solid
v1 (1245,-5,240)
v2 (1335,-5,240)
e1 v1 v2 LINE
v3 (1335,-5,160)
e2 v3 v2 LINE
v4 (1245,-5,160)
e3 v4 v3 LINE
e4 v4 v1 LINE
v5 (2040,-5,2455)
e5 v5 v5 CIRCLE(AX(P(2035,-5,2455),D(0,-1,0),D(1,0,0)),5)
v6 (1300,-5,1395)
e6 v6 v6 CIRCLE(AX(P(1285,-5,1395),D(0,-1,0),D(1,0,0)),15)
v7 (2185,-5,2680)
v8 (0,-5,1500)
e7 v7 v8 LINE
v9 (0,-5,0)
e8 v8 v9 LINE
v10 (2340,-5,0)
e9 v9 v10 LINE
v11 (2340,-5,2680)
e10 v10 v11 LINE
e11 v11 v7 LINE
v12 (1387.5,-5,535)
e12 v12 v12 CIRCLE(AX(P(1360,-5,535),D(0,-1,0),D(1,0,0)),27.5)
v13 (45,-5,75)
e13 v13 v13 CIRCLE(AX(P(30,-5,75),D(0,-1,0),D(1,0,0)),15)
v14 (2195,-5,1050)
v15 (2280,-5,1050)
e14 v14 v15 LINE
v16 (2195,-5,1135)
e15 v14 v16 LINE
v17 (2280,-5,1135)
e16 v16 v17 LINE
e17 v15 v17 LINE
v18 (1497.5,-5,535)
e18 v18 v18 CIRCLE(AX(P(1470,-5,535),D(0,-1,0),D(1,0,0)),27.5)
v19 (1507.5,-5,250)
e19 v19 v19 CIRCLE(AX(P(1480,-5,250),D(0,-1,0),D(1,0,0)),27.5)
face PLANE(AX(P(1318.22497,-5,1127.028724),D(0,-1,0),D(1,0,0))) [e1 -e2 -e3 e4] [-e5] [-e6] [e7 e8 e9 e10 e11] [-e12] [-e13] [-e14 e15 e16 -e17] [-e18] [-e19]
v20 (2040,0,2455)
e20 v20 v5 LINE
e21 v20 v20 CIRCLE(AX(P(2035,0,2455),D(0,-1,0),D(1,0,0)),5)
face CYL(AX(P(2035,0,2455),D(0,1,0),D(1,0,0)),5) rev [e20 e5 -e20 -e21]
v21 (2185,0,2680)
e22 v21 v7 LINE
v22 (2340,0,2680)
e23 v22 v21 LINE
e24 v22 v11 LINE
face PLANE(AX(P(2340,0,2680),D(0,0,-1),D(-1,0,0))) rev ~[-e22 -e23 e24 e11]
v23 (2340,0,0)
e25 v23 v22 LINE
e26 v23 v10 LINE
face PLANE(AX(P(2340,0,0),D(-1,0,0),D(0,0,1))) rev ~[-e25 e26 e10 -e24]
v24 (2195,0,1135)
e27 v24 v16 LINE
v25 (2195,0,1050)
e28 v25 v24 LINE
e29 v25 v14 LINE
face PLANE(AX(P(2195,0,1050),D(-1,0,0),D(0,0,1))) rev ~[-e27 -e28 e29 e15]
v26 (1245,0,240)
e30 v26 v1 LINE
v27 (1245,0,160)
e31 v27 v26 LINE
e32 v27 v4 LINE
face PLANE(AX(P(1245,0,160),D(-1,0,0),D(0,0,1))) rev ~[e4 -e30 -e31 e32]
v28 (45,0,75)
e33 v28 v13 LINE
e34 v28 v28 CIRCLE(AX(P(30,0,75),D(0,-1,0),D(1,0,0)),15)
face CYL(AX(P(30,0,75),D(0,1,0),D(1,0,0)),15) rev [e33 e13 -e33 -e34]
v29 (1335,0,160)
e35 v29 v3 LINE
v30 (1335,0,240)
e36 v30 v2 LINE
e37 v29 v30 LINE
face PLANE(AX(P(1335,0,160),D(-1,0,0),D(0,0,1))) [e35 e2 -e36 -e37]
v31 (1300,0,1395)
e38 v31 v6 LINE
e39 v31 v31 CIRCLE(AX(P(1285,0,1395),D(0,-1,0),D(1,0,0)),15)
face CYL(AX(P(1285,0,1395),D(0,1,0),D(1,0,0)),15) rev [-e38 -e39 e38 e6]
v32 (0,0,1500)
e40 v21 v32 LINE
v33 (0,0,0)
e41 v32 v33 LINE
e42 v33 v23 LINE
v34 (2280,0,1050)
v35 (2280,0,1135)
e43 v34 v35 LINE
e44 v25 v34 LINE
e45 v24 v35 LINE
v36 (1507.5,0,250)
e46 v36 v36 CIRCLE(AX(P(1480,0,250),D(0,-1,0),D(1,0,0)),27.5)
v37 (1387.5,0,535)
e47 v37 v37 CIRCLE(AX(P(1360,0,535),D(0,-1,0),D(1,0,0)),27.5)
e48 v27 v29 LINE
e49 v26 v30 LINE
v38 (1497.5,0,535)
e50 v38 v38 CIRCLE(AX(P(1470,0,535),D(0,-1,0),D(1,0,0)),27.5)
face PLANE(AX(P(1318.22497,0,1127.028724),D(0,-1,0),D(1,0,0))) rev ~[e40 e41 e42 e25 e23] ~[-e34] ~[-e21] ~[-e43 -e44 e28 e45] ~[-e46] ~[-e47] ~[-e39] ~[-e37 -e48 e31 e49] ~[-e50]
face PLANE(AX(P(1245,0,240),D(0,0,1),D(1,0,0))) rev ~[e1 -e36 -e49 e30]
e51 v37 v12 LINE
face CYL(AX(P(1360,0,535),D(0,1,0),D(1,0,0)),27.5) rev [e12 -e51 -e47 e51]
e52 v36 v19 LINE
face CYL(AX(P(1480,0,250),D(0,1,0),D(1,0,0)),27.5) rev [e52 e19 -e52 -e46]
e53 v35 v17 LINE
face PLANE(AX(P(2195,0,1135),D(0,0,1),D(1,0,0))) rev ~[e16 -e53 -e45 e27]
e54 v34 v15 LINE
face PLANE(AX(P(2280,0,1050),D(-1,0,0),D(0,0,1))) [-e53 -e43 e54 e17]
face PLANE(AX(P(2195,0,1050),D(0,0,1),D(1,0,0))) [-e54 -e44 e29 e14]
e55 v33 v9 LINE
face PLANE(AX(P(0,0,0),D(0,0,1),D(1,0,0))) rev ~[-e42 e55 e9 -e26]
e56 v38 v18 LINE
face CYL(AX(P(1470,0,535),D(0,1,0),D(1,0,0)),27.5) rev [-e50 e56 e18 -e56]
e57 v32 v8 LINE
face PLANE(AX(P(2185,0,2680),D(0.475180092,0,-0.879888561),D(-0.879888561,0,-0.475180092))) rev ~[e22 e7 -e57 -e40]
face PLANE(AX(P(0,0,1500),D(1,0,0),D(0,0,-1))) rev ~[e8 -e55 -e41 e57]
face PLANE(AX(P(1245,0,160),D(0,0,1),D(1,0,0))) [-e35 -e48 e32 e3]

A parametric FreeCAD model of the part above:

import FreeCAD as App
import Part
import Sketcher

V = App.Vector


def add_polygon(sketch, points):
    """Adds a closed chain of lines whose ends are joined by coincident constraints."""
    first, n = sketch.GeometryCount, len(points)
    for a, b in zip(points, points[1:] + points[:1]):
        sketch.addGeometry(Part.LineSegment(App.Vector(*a, 0), App.Vector(*b, 0)), False)
    for i in range(n):
        sketch.addConstraint(Sketcher.Constraint("Coincident", first + i, 2, first + (i + 1) % n, 1))

doc = App.newDocument("Part")
body = doc.addObject("PartDesign::Body", "Body")

# Sketch on XZ plane
sketch1 = body.newObject("Sketcher::SketchObject", "Sketch")
sketch1.AttachmentSupport = (doc.getObject("XZ_Plane"), [""])
sketch1.MapMode = "FlatFace"
add_polygon(sketch1, [(0, 1500), (0, 0), (2340, 0), (2340, 2680), (2185, 2680)])  # lines 0-4
sketch1.addGeometry(Part.Circle(V(30, 75, 0), V(0, 0, 1), 15), False)  # 5
add_polygon(sketch1, [(1335, 160), (1245, 160), (1245, 240), (1335, 240)])  # lines 6-9
sketch1.addGeometry(Part.Circle(V(1480, 250, 0), V(0, 0, 1), 27.5), False)  # 10
sketch1.addGeometry(Part.Circle(V(1360, 535, 0), V(0, 0, 1), 27.5), False)  # 11
sketch1.addGeometry(Part.Circle(V(1470, 535, 0), V(0, 0, 1), 27.5), False)  # 12
add_polygon(sketch1, [(2280, 1050), (2195, 1050), (2195, 1135), (2280, 1135)])  # lines 13-16
sketch1.addGeometry(Part.Circle(V(1285, 1395, 0), V(0, 0, 1), 15), False)  # 17
sketch1.addGeometry(Part.Circle(V(2035, 2455, 0), V(0, 0, 1), 5), False)  # 18
sketch1.addConstraint([
    Sketcher.Constraint("Vertical", 0),
    Sketcher.Constraint("Horizontal", 1),
    Sketcher.Constraint("Vertical", 2),
    Sketcher.Constraint("Horizontal", 3),
    Sketcher.Constraint("Horizontal", 6),
    Sketcher.Constraint("Vertical", 7),
    Sketcher.Constraint("Horizontal", 8),
    Sketcher.Constraint("Vertical", 9),
    Sketcher.Constraint("Horizontal", 13),
    Sketcher.Constraint("Vertical", 14),
    Sketcher.Constraint("Horizontal", 15),
    Sketcher.Constraint("Vertical", 16),
    Sketcher.Constraint("Coincident", 0, 2, -1, 1),
    Sketcher.Constraint("Equal", 10, 11),
    Sketcher.Constraint("Equal", 11, 12),
    Sketcher.Constraint("Equal", 5, 17),
    Sketcher.Constraint("Horizontal", 11, 3, 12, 3),
    Sketcher.Constraint("Equal", 15, 14),
    Sketcher.Constraint("Diameter", 5, 30.0),
    Sketcher.Constraint("Diameter", 10, 55.0),
    Sketcher.Constraint("Diameter", 18, 10.0),
    Sketcher.Constraint("DistanceX", 1, 1, 1, 2, 2340.0),
    Sketcher.Constraint("DistanceX", 3, 2, 3, 1, 155.0),
    Sketcher.Constraint("DistanceX", 6, 2, 6, 1, 90.0),
    Sketcher.Constraint("DistanceX", 13, 2, 13, 1, 85.0),
    Sketcher.Constraint("DistanceY", 0, 2, 0, 1, 1500.0),
    Sketcher.Constraint("DistanceY", 2, 1, 2, 2, 2680.0),
    Sketcher.Constraint("DistanceY", 7, 1, 7, 2, 80.0),
    Sketcher.Constraint("DistanceX", -1, 1, 5, 3, 30.0),
    Sketcher.Constraint("DistanceY", -1, 1, 5, 3, 75.0),
    Sketcher.Constraint("DistanceX", -1, 1, 10, 3, 1480.0),
    Sketcher.Constraint("DistanceY", -1, 1, 10, 3, 250.0),
    Sketcher.Constraint("DistanceX", -1, 1, 11, 3, 1360.0),
    Sketcher.Constraint("DistanceY", -1, 1, 11, 3, 535.0),
    Sketcher.Constraint("DistanceX", -1, 1, 12, 3, 1470.0),
    Sketcher.Constraint("DistanceX", -1, 1, 17, 3, 1285.0),
    Sketcher.Constraint("DistanceY", -1, 1, 17, 3, 1395.0),
    Sketcher.Constraint("DistanceX", -1, 1, 18, 3, 2035.0),
    Sketcher.Constraint("DistanceY", -1, 1, 18, 3, 2455.0),
    Sketcher.Constraint("DistanceX", -1, 1, 6, 2, 1245.0),
    Sketcher.Constraint("DistanceY", -1, 1, 6, 2, 160.0),
    Sketcher.Constraint("DistanceX", -1, 1, 13, 2, 2195.0),
    Sketcher.Constraint("DistanceY", -1, 1, 13, 2, 1050.0),
])
pad1 = body.newObject("PartDesign::Pad", "Pad")
pad1.Profile = sketch1
pad1.Length = 5

doc.recompute()
